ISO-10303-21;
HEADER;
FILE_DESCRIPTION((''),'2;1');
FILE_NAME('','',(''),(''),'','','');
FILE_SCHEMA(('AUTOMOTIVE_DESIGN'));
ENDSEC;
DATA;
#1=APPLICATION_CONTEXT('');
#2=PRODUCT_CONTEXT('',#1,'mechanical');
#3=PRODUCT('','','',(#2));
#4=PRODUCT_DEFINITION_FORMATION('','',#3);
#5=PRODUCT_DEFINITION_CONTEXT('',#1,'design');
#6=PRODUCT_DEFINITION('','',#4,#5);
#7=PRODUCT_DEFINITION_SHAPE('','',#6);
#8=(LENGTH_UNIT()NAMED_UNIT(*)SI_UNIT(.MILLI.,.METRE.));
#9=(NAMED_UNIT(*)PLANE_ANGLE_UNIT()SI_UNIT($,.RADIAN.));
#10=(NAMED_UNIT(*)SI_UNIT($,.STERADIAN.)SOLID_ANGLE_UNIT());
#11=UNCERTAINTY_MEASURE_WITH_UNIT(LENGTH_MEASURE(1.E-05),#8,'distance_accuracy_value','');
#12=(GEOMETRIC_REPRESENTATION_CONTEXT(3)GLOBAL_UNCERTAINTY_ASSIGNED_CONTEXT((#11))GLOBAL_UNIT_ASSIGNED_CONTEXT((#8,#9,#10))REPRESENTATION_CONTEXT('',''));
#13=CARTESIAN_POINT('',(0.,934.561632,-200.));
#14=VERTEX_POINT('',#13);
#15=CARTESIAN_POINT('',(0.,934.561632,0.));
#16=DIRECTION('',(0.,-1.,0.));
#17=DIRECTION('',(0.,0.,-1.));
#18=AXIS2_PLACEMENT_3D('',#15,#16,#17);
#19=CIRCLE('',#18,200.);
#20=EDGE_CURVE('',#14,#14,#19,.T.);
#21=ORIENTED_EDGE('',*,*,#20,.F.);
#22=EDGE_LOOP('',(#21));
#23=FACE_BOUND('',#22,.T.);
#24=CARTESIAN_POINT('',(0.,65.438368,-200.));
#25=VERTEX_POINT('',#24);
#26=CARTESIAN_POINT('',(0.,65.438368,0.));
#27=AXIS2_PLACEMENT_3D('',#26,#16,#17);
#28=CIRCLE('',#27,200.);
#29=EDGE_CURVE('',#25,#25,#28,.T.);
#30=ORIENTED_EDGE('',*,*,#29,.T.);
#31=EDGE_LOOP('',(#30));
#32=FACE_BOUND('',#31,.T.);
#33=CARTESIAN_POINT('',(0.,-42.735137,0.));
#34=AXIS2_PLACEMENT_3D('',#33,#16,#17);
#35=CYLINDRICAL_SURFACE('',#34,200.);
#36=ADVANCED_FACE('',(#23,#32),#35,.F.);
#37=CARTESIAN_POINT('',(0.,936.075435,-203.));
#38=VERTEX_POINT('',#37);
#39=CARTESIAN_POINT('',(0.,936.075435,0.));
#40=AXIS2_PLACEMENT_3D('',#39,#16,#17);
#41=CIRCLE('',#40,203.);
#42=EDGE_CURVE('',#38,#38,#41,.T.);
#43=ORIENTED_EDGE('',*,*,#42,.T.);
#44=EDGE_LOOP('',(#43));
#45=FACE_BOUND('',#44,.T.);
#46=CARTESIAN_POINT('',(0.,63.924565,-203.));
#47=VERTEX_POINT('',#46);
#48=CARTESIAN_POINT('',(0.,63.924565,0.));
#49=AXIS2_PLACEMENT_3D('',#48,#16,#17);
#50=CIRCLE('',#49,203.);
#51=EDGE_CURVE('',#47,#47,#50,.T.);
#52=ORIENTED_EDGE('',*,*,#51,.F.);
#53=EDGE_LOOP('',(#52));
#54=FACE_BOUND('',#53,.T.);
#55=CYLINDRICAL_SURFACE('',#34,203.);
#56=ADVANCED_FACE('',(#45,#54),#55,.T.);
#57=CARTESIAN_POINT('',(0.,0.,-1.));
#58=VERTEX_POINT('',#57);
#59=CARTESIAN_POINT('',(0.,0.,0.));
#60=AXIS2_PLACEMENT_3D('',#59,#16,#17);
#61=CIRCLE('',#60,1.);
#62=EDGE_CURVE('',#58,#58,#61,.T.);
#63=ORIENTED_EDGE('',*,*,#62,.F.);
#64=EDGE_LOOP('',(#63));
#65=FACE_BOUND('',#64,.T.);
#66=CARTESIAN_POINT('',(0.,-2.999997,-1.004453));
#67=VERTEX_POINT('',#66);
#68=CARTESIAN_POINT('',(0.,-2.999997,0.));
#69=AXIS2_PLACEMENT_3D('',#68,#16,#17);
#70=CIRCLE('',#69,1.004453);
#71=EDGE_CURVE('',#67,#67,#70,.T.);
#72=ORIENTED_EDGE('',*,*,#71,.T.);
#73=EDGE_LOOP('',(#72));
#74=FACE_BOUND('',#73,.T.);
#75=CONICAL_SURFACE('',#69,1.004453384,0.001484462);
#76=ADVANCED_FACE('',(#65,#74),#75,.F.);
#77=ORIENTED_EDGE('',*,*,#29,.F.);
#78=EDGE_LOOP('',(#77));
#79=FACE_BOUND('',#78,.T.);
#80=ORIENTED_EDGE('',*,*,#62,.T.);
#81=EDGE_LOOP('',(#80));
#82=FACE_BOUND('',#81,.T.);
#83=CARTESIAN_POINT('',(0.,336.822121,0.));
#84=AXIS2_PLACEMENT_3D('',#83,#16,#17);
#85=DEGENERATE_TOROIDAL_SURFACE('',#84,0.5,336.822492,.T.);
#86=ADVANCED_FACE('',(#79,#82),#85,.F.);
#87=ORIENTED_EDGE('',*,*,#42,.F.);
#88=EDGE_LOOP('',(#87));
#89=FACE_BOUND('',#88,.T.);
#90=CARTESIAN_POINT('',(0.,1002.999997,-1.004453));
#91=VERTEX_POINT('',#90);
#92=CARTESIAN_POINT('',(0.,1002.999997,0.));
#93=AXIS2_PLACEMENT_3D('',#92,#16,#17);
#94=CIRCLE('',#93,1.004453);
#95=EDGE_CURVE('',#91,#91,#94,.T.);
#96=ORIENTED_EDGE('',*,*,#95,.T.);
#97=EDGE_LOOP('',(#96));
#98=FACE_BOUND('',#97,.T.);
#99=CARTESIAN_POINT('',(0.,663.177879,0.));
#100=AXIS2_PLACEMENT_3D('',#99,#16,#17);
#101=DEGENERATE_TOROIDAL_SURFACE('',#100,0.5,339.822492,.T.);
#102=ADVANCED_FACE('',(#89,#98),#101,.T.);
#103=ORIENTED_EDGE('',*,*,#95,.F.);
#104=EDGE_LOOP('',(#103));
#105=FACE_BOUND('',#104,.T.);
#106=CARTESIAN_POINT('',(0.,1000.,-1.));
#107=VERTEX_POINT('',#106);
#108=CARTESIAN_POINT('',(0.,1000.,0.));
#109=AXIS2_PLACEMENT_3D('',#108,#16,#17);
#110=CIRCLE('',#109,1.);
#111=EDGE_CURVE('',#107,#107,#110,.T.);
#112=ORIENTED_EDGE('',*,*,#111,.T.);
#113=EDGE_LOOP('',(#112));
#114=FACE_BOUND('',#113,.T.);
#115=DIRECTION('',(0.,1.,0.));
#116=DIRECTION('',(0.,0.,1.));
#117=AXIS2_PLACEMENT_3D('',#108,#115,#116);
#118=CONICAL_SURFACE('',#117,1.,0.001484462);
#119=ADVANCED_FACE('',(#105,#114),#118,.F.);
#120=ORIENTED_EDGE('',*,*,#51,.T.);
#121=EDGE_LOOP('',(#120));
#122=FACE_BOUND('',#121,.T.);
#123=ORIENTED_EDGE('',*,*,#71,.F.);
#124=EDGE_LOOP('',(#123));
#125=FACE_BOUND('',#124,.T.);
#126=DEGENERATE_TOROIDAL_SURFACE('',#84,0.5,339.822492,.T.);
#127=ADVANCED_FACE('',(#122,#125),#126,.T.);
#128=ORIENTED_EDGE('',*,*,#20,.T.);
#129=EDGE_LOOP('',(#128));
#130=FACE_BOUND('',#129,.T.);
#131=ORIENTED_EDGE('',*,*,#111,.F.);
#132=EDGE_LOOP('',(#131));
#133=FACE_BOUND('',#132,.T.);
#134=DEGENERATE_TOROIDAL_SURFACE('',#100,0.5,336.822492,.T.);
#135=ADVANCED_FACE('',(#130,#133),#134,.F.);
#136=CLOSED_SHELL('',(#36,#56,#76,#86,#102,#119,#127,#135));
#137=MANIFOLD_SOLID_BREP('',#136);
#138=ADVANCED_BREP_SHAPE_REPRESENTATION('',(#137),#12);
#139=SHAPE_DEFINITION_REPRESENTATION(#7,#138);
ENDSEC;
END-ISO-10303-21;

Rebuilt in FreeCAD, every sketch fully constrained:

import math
import FreeCAD as App
import Part
import Sketcher

V = App.Vector
Q = App.Units.Quantity

doc = App.newDocument("Part")
body = doc.addObject("PartDesign::Body", "Body")

sketch1 = doc.addObject("Sketcher::SketchObject", "Sketch")
body.addObject(sketch1)
sketch1.AttachmentSupport = (doc.YZ_Plane, [""])
sketch1.MapMode = "FlatFace"
sketch1.addGeometry(Part.ArcOfCircle(Part.Circle(V(336.8, -0.5, 0), V(0, 0, 1), 336.8), math.radians(-180), math.radians(-144)), False)
sketch1.addGeometry(Part.LineSegment(V(0, -1, 0), V(-3, -1, 0)), False)
sketch1.addGeometry(Part.ArcOfCircle(Part.Circle(V(336.8, -0.5, 0), V(0, 0, 1), 339.8), math.radians(-180), math.radians(-143)), False)
sketch1.addGeometry(Part.LineSegment(V(63.9, -203, 0), V(936.1, -203, 0)), False)
sketch1.addGeometry(Part.ArcOfCircle(Part.Circle(V(663.2, -0.5, 0), V(0, 0, 1), 339.8), math.radians(-37), math.radians(0)), False)
sketch1.addGeometry(Part.LineSegment(V(1003, -1, 0), V(1000, -1, 0)), False)
sketch1.addGeometry(Part.ArcOfCircle(Part.Circle(V(663.2, -0.5, 0), V(0, 0, 1), 336.8), math.radians(-36), math.radians(0)), False)
sketch1.addGeometry(Part.LineSegment(V(934.6, -200, 0), V(65.4, -200, 0)), False)
sketch1.addConstraint(Sketcher.Constraint("Coincident", 0, 1, 1, 1))
sketch1.addConstraint(Sketcher.Constraint("Coincident", 1, 2, 2, 1))
sketch1.addConstraint(Sketcher.Constraint("Coincident", 2, 2, 3, 1))
sketch1.addConstraint(Sketcher.Constraint("Coincident", 3, 2, 4, 1))
sketch1.addConstraint(Sketcher.Constraint("Coincident", 4, 2, 5, 1))
sketch1.addConstraint(Sketcher.Constraint("Coincident", 5, 2, 6, 2))
sketch1.addConstraint(Sketcher.Constraint("Coincident", 6, 1, 7, 1))
sketch1.addConstraint(Sketcher.Constraint("Coincident", 7, 2, 0, 2))
sketch1.addConstraint(Sketcher.Constraint("Horizontal", 3))
sketch1.addConstraint(Sketcher.Constraint("Horizontal", 7))
sketch1.addConstraint(Sketcher.Constraint("Coincident", 2, 3, 0, 3))
sketch1.addConstraint(Sketcher.Constraint("Coincident", 6, 3, 4, 3))
sketch1.addConstraint(Sketcher.Constraint("Equal", 2, 4))
sketch1.addConstraint(Sketcher.Constraint("Equal", 0, 6))
sketch1.addConstraint(Sketcher.Constraint("PointOnObject", 0, 1, -2))
sketch1.addConstraint(Sketcher.Constraint("Horizontal", 2, 3, 4, 3))
sketch1.addConstraint(Sketcher.Constraint("Horizontal", 1, 2, 4, 2))
sketch1.addConstraint(Sketcher.Constraint("Horizontal", 0, 1, 5, 2))
sketch1.addConstraint(Sketcher.Constraint("Distance", 1, Q("3 mm")))
sketch1.addConstraint(Sketcher.Constraint("DistanceY", 0, 1, -1, 1, Q("1 mm")))
sketch1.addConstraint(Sketcher.Constraint("DistanceY", 2, 2, -1, 1, Q("203 mm")))
sketch1.addConstraint(Sketcher.Constraint("DistanceX", -1, 1, 5, 2, Q("1000 mm")))
sketch1.addConstraint(Sketcher.Constraint("DistanceY", 6, 1, -1, 1, Q("200 mm")))
sketch1.addConstraint(Sketcher.Constraint("DistanceY", 0, 3, -1, 1, Q("0.5 mm")))
sketch1.addConstraint(Sketcher.Constraint("Radius", 0, Q("336.822492 mm")))
sketch1.addConstraint(Sketcher.Constraint("DistanceY", 1, 2, -1, 1, Q("1.004453 mm")))
revolution = doc.addObject("PartDesign::Revolution", "Revolution")
body.addObject(revolution)
revolution.Profile = sketch1
revolution.ReferenceAxis = (sketch1, ["H_Axis"])
revolution.Angle = 360

doc.recompute()
